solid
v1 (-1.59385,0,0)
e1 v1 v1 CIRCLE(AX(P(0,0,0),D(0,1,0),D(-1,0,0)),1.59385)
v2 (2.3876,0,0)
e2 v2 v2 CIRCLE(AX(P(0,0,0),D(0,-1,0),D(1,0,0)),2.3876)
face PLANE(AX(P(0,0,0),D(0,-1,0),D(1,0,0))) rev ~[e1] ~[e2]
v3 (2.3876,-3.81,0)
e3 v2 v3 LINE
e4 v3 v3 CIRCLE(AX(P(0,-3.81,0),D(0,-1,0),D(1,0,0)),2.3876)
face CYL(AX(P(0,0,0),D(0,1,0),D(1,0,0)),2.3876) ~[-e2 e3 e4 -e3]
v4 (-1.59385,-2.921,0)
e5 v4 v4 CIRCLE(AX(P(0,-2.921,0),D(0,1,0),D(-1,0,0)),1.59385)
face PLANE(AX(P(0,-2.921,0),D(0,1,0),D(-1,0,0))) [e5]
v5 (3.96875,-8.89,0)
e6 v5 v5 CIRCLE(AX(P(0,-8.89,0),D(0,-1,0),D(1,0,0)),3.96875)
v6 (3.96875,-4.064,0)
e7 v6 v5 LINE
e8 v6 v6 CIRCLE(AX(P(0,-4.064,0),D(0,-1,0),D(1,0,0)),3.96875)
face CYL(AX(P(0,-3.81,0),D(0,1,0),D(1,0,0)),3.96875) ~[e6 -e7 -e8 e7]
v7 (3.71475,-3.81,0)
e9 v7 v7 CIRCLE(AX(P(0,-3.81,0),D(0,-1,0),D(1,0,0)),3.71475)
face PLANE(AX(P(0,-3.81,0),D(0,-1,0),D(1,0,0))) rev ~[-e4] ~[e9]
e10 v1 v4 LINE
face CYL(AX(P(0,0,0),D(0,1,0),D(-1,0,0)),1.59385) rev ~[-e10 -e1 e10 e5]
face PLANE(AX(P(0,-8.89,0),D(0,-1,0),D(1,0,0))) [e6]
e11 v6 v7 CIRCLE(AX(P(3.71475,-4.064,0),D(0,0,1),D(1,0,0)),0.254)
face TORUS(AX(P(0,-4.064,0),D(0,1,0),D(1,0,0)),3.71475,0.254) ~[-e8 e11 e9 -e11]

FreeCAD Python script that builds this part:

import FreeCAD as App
import Part
import Sketcher

V = App.Vector
Q = App.Units.Quantity


def edges_at(feature, points):
    """Names of the edges that pass closest to the given points."""
    edges = feature.Shape.Edges
    near = lambda p: min(range(len(edges)), key=lambda i: edges[i].distToShape(Part.Vertex(*p))[0])
    return sorted({f"Edge{near(p) + 1}" for p in points})

doc = App.newDocument("Part")
body = doc.addObject("PartDesign::Body", "Body")

# Sketch on XZ plane
sketch1 = body.newObject("Sketcher::SketchObject", "Sketch")
sketch1.AttachmentSupport = (doc.getObject("XZ_Plane"), [""])
sketch1.MapMode = "FlatFace"
sketch1.addGeometry(Part.Circle(V(0, 0, 0), V(0, 0, 1), 2.3876), False)
sketch1.addConstraint([
    Sketcher.Constraint("Coincident", 0, 3, -1, 1),
    Sketcher.Constraint("Diameter", 0, Q("0.188 in")),
])
pad1 = body.newObject("PartDesign::Pad", "Pad")
pad1.Profile = sketch1
pad1.Length = Q("0.15 in")

# Sketch on XZ plane
sketch2 = body.newObject("Sketcher::SketchObject", "Sketch001")
sketch2.AttachmentSupport = (doc.getObject("XZ_Plane"), [""])
sketch2.MapMode = "FlatFace"
sketch2.AttachmentOffset = App.Placement(V(0, 0, 0.15 * 25.4), App.Rotation())
sketch2.addGeometry(Part.Circle(V(0, 0, 0), V(0, 0, 1), 3.96875), False)
sketch2.addConstraint([
    Sketcher.Constraint("Coincident", 0, 3, -1, 1),
    Sketcher.Constraint("Diameter", 0, Q("0.3125 in")),
])
pad2 = body.newObject("PartDesign::Pad", "Pad001")
pad2.Profile = sketch2
pad2.Length = Q("0.2 in")

# Sketch on XZ plane
sketch3 = body.newObject("Sketcher::SketchObject", "Sketch002")
sketch3.AttachmentSupport = (doc.getObject("XZ_Plane"), [""])
sketch3.MapMode = "FlatFace"
sketch3.addGeometry(Part.Circle(V(0, 0, 0), V(0, 0, 1), 1.59385), False)
sketch3.addConstraint([
    Sketcher.Constraint("Coincident", 0, 3, -1, 1),
    Sketcher.Constraint("Diameter", 0, Q("0.1255 in")),
])
pocket1 = body.newObject("PartDesign::Pocket", "Pocket")
pocket1.Profile = sketch3
pocket1.Length = Q("0.115 in")
pocket1.Reversed = True
doc.recompute()

fillet = body.newObject("PartDesign::Fillet", "Fillet")
fillet.Base = (pocket1, edges_at(pocket1, [(-3.969, -3.81, 0)]))
fillet.Radius = Q("0.01 in")

doc.recompute()
